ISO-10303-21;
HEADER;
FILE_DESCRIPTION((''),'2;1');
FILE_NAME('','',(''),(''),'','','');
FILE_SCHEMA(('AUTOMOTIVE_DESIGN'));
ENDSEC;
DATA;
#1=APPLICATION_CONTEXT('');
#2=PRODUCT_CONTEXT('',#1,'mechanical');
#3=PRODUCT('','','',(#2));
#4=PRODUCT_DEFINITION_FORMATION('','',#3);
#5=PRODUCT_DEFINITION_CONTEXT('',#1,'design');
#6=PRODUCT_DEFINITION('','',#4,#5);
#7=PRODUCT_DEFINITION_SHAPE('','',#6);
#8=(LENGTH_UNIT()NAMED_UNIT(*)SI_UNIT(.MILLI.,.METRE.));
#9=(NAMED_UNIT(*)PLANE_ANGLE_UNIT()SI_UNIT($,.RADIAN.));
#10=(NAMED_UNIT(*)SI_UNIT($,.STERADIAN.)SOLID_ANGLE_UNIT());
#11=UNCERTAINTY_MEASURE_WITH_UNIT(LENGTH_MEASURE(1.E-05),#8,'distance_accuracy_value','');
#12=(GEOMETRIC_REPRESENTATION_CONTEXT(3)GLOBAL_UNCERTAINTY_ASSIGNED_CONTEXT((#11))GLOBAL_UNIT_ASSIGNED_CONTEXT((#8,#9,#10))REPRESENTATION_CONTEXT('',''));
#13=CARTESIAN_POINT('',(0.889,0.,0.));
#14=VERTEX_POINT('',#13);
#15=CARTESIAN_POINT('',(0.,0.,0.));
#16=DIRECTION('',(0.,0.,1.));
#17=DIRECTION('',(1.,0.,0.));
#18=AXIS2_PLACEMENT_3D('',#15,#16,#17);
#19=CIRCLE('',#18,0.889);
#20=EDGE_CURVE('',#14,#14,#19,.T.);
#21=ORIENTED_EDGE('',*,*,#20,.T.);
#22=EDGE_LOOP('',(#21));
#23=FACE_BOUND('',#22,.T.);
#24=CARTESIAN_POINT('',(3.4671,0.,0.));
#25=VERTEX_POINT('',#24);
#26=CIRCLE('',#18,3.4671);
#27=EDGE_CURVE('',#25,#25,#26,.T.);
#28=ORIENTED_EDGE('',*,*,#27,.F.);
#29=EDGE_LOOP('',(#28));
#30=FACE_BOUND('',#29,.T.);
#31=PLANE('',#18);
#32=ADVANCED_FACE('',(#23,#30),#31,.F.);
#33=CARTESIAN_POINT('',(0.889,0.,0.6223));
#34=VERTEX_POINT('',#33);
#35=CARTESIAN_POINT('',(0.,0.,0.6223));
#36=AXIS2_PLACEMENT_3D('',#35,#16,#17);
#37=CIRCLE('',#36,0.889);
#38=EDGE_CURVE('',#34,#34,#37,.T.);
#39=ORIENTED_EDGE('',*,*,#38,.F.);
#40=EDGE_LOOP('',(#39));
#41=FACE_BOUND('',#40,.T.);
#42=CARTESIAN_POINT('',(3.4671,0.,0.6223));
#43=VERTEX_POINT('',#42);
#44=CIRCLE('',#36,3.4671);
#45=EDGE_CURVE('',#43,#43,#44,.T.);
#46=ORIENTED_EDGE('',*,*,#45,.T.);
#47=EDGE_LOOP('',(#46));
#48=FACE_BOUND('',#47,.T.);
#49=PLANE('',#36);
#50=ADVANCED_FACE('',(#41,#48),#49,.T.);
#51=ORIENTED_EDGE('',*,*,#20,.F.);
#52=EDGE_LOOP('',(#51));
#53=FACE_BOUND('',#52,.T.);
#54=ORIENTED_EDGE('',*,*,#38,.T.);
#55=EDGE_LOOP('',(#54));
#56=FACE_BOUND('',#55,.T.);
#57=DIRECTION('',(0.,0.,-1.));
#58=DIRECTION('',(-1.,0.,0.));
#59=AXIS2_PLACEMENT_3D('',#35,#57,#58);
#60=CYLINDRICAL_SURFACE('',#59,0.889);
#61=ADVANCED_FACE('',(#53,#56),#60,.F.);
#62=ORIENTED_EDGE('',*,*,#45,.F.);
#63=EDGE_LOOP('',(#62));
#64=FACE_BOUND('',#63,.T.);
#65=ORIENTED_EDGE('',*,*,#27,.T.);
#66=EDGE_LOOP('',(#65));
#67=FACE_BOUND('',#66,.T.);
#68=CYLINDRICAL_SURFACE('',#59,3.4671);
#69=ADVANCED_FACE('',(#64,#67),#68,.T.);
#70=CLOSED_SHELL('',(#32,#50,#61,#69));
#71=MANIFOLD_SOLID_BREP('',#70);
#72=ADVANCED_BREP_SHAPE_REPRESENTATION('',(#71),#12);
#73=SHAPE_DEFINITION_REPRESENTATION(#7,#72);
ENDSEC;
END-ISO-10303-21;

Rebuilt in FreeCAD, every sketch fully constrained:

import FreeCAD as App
import Part
import Sketcher
Q = App.Units.Quantity

doc = App.newDocument("Part")
params = doc.addObject("Spreadsheet::Sheet", "Params")
for row, (alias, value) in enumerate([
    ("sketch1_diameter", "0.07 in"),
    ("sketch1_diameter2", "0.273 in"),
    ("pad1_length", "0.0245 in"),
], start=1):
    params.set(f"A{row}", alias)
    params.set(f"B{row}", "=" + value)
    params.setAlias(f"B{row}", alias)

body = doc.addObject("PartDesign::Body", "Body")

sketch1 = body.newObject("Sketcher::SketchObject", "Sketch")
sketch1.AttachmentSupport = (doc.getObject("XY_Plane"), [""])
sketch1.MapMode = "FlatFace"
sketch1.addGeometry([
    Part.Circle(App.Vector(0, 0, 0), App.Vector(0, 0, 1), 3.5),
    Part.Circle(App.Vector(0, 0, 0), App.Vector(0, 0, 1), 0.9),
], False)
sketch1.addConstraint([
    Sketcher.Constraint("Coincident", 0, 3, -1, 1),
    Sketcher.Constraint("Coincident", 1, 3, -1, 1),
    Sketcher.Constraint("Diameter", 1, Q("0.07 in")),
    Sketcher.Constraint("Diameter", 0, Q("0.273 in")),
])
sketch1.setExpression("Constraints[2]", "Params.sketch1_diameter")
sketch1.setExpression("Constraints[3]", "Params.sketch1_diameter2")
pad1 = body.newObject("PartDesign::Pad", "Pad")
pad1.Profile = sketch1
pad1.setExpression("Length", "Params.pad1_length")

doc.recompute()
